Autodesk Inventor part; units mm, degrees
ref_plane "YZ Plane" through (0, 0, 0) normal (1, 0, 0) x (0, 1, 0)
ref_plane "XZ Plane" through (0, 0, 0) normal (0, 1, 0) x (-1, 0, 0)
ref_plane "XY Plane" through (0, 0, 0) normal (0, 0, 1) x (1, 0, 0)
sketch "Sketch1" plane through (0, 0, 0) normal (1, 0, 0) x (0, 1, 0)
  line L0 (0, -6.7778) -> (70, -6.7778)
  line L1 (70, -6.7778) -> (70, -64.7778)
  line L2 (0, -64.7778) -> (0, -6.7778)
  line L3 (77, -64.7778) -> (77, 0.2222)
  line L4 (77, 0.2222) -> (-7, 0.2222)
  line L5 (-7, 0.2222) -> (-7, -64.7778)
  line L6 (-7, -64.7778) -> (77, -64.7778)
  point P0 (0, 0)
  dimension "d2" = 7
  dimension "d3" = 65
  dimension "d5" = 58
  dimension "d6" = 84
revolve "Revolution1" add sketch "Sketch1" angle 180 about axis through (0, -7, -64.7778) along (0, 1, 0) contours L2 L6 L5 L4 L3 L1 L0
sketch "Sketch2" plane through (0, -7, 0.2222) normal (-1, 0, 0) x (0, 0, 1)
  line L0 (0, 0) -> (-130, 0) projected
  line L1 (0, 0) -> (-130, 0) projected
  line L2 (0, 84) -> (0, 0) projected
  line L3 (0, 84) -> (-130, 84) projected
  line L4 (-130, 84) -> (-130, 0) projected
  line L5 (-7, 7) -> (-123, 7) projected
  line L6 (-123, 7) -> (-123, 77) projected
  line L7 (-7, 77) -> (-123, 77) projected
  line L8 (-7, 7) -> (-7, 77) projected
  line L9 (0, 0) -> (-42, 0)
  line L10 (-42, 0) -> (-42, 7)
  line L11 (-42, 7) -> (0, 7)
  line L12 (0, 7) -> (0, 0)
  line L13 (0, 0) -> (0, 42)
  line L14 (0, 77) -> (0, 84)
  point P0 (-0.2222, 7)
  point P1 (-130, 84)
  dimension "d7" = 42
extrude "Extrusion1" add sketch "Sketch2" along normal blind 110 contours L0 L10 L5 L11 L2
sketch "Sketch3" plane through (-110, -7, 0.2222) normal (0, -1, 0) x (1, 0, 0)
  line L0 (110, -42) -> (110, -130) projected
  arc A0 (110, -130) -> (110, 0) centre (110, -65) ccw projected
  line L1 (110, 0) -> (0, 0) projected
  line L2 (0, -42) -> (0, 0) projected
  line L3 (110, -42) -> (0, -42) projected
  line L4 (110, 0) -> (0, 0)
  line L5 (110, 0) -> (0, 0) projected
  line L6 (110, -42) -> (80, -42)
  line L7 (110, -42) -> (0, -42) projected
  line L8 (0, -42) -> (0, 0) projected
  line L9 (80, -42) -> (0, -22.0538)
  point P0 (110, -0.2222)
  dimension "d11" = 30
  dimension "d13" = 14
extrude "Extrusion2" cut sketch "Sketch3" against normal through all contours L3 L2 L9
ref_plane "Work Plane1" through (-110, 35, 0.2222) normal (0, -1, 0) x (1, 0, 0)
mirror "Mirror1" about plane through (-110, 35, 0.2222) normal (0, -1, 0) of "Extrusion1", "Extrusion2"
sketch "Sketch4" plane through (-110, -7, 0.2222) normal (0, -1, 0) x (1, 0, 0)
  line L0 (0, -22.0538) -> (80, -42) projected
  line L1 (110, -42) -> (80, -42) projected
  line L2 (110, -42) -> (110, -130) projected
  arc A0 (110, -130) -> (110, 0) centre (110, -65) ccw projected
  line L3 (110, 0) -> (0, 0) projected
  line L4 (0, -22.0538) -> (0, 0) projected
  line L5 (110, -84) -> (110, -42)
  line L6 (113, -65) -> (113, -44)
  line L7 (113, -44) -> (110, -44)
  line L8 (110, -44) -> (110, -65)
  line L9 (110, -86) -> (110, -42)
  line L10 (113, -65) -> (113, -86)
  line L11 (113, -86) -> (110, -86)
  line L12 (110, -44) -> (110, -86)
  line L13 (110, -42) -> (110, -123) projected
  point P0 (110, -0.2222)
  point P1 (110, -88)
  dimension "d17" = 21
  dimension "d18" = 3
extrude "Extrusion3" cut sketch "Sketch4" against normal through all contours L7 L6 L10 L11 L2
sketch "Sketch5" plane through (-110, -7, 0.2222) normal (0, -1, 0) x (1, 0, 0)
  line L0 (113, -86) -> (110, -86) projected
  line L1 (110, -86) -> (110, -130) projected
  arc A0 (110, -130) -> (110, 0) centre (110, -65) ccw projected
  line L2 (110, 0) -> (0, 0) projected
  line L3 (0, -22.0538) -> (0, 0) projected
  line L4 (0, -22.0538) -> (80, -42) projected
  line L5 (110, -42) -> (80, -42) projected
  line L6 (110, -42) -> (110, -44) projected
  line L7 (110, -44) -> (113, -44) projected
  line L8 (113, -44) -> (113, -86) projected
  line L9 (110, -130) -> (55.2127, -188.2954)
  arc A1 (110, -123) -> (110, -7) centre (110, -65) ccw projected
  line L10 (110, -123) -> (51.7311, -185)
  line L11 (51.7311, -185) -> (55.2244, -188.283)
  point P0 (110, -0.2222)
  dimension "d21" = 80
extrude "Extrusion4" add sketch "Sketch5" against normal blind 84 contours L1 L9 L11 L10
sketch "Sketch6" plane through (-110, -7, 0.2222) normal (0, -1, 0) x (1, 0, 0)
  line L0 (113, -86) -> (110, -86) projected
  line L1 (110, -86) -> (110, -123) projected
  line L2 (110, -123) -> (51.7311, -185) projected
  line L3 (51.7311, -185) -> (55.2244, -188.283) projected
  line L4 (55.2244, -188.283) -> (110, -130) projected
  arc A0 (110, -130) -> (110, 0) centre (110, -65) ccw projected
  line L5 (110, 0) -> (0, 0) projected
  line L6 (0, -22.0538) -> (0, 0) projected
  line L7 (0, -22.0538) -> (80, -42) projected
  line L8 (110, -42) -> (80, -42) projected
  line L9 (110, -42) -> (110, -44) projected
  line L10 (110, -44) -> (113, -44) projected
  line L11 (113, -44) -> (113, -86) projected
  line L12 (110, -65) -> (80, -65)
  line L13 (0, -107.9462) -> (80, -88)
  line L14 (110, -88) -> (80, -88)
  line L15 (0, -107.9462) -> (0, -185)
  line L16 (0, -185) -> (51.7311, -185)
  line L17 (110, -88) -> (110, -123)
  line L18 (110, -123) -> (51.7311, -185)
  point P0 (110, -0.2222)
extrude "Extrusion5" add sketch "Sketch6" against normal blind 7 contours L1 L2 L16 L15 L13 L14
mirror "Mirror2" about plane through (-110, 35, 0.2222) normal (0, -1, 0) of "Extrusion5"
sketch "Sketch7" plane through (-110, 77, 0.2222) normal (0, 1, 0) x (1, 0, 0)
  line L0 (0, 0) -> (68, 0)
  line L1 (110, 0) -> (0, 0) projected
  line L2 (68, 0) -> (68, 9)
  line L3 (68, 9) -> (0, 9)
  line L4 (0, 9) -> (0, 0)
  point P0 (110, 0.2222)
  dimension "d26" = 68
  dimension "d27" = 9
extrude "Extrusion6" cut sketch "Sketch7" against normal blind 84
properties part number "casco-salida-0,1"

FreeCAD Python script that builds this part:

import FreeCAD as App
import Part
import Sketcher
from FreeCAD import Vector
Q = App.Units.Quantity

doc = App.newDocument("Part")
params = doc.addObject("Spreadsheet::Sheet", "Params")
for row, (alias, value) in enumerate([
    ("sketch1_width", "7 mm"),
    ("sketch1_width2", "84 mm"),
    ("sketch1_height", "58 mm"),
    ("sketch1_height2", "65 mm"),
    ("revolution_angle", "180 deg"),
    ("sketch2_height", "42 mm"),
    ("sketch2_width", "7 mm"),
    ("pad1_length", "110 mm"),
    ("sketch3_width", "80 mm"),
    ("sketch4_width", "3 mm"),
    ("sketch4_height", "42 mm"),
    ("sketch5_height", "7 mm"),
    ("pad2_length", "84 mm"),
    ("sketch6_width", "30 mm"),
    ("sketch6_height", "35 mm"),
    ("pad3_length", "7 mm"),
    ("sketch7_width", "68 mm"),
    ("sketch7_height", "9 mm"),
    ("pocket3_length", "84 mm"),
], start=1):
    params.set(f"A{row}", alias)
    params.set(f"B{row}", "=" + value)
    params.setAlias(f"B{row}", alias)

body = doc.addObject("PartDesign::Body", "Body")

# Sketch on YZ plane
sketch1 = body.newObject("Sketcher::SketchObject", "Sketch")
sketch1.AttachmentSupport = (doc.getObject("YZ_Plane"), [""])
sketch1.MapMode = "FlatFace"
sketch1.addGeometry(Part.LineSegment(Vector(0, -65, 0), Vector(0, -7, 0)), False)
sketch1.addGeometry(Part.LineSegment(Vector(0, -7, 0), Vector(70, -7, 0)), False)
sketch1.addGeometry(Part.LineSegment(Vector(70, -7, 0), Vector(70, -65, 0)), False)
sketch1.addGeometry(Part.LineSegment(Vector(70, -65, 0), Vector(77, -65, 0)), False)
sketch1.addGeometry(Part.LineSegment(Vector(77, -65, 0), Vector(77, 0, 0)), False)
sketch1.addGeometry(Part.LineSegment(Vector(77, 0, 0), Vector(-7, 0, 0)), False)
sketch1.addGeometry(Part.LineSegment(Vector(-7, 0, 0), Vector(-7, -65, 0)), False)
sketch1.addGeometry(Part.LineSegment(Vector(-7, -65, 0), Vector(0, -65, 0)), False)
sketch1.addGeometry(Part.LineSegment(Vector(-7, -65, 0), Vector(77, -65, 0)), True)  # axis
sketch1.addConstraint(Sketcher.Constraint("Coincident", 0, 2, 1, 1))
sketch1.addConstraint(Sketcher.Constraint("Coincident", 1, 2, 2, 1))
sketch1.addConstraint(Sketcher.Constraint("Coincident", 2, 2, 3, 1))
sketch1.addConstraint(Sketcher.Constraint("Coincident", 3, 2, 4, 1))
sketch1.addConstraint(Sketcher.Constraint("Coincident", 4, 2, 5, 1))
sketch1.addConstraint(Sketcher.Constraint("Coincident", 5, 2, 6, 1))
sketch1.addConstraint(Sketcher.Constraint("Coincident", 6, 2, 7, 1))
sketch1.addConstraint(Sketcher.Constraint("Coincident", 7, 2, 0, 1))
sketch1.addConstraint(Sketcher.Constraint("Vertical", 0))
sketch1.addConstraint(Sketcher.Constraint("Horizontal", 1))
sketch1.addConstraint(Sketcher.Constraint("Vertical", 2))
sketch1.addConstraint(Sketcher.Constraint("Horizontal", 3))
sketch1.addConstraint(Sketcher.Constraint("Vertical", 4))
sketch1.addConstraint(Sketcher.Constraint("Horizontal", 5))
sketch1.addConstraint(Sketcher.Constraint("Vertical", 6))
sketch1.addConstraint(Sketcher.Constraint("Horizontal", 7))
sketch1.addConstraint(Sketcher.Constraint("Horizontal", 8))
sketch1.addConstraint(Sketcher.Constraint("Coincident", 8, 1, 6, 2))
sketch1.addConstraint(Sketcher.Constraint("Coincident", 8, 2, 3, 2))
sketch1.addConstraint(Sketcher.Constraint("PointOnObject", 0, 2, -2))
sketch1.addConstraint(Sketcher.Constraint("Equal", 3, 7))
sketch1.addConstraint(Sketcher.Constraint("DistanceX", 3, 1, 3, 2, 7.0))
sketch1.addConstraint(Sketcher.Constraint("DistanceX", 5, 2, 5, 1, 84.0))
sketch1.addConstraint(Sketcher.Constraint("DistanceY", 0, 1, 0, 2, 58.0))
sketch1.addConstraint(Sketcher.Constraint("DistanceY", 4, 1, 4, 2, 65.0))
sketch1.addConstraint(Sketcher.Constraint("DistanceY", 0, 2, -1, 1, 6.7778))
sketch1.setExpression("Constraints[21]", "Params.sketch1_width")
sketch1.setExpression("Constraints[22]", "Params.sketch1_width2")
sketch1.setExpression("Constraints[23]", "Params.sketch1_height")
sketch1.setExpression("Constraints[24]", "Params.sketch1_height2")
revolution = body.newObject("PartDesign::Revolution", "Revolution")
revolution.Profile = sketch1
revolution.ReferenceAxis = (sketch1, ["Axis0"])
revolution.setExpression("Angle", "Params.revolution_angle")

# Sketch on YZ plane
sketch2 = body.newObject("Sketcher::SketchObject", "Sketch001")
sketch2.AttachmentSupport = (doc.getObject("YZ_Plane"), [""])
sketch2.MapMode = "FlatFace"
sketch2.addGeometry(Part.LineSegment(Vector(-7, -42, 0), Vector(-7, 0, 0)), False)
sketch2.addGeometry(Part.LineSegment(Vector(-7, 0, 0), Vector(0, 0, 0)), False)
sketch2.addGeometry(Part.LineSegment(Vector(0, 0, 0), Vector(0, -42, 0)), False)
sketch2.addGeometry(Part.LineSegment(Vector(0, -42, 0), Vector(-7, -42, 0)), False)
sketch2.addConstraint(Sketcher.Constraint("Coincident", 0, 2, 1, 1))
sketch2.addConstraint(Sketcher.Constraint("Coincident", 1, 2, 2, 1))
sketch2.addConstraint(Sketcher.Constraint("Coincident", 2, 2, 3, 1))
sketch2.addConstraint(Sketcher.Constraint("Coincident", 3, 2, 0, 1))
sketch2.addConstraint(Sketcher.Constraint("Vertical", 0))
sketch2.addConstraint(Sketcher.Constraint("Horizontal", 1))
sketch2.addConstraint(Sketcher.Constraint("Vertical", 2))
sketch2.addConstraint(Sketcher.Constraint("Horizontal", 3))
sketch2.addConstraint(Sketcher.Constraint("PointOnObject", 1, 2, -2))
sketch2.addConstraint(Sketcher.Constraint("DistanceY", 0, 1, 0, 2, 42.0))
sketch2.addConstraint(Sketcher.Constraint("DistanceX", 1, 1, 1, 2, 7.0))
sketch2.addConstraint(Sketcher.Constraint("DistanceY", -1, 1, 0, 2, 0.2222))
sketch2.setExpression("Constraints[9]", "Params.sketch2_height")
sketch2.setExpression("Constraints[10]", "Params.sketch2_width")
pad1 = body.newObject("PartDesign::Pad", "Pad")
pad1.Profile = sketch2
pad1.setExpression("Length", "Params.pad1_length")
pad1.Reversed = True

# Sketch on XZ plane
sketch3 = body.newObject("Sketcher::SketchObject", "Sketch002")
sketch3.AttachmentSupport = (doc.getObject("XZ_Plane"), [""])
sketch3.MapMode = "FlatFace"
sketch3.AttachmentOffset = App.Placement(Vector(0, 0, 7), App.Rotation())
sketch3.addGeometry(Part.LineSegment(Vector(-110, -42, 0), Vector(-30, -42, 0)), False)
sketch3.addGeometry(Part.LineSegment(Vector(-30, -42, 0), Vector(-110, -22, 0)), False)
sketch3.addGeometry(Part.LineSegment(Vector(-110, -22, 0), Vector(-110, -42, 0)), False)
sketch3.addConstraint(Sketcher.Constraint("Coincident", 0, 2, 1, 1))
sketch3.addConstraint(Sketcher.Constraint("Coincident", 1, 2, 2, 1))
sketch3.addConstraint(Sketcher.Constraint("Coincident", 2, 2, 0, 1))
sketch3.addConstraint(Sketcher.Constraint("Horizontal", 0))
sketch3.addConstraint(Sketcher.Constraint("Vertical", 2))
sketch3.addConstraint(Sketcher.Constraint("DistanceX", 0, 2, -1, 1, 30.0))
sketch3.addConstraint(Sketcher.Constraint("DistanceX", 0, 1, 0, 2, 80.0))
sketch3.addConstraint(Sketcher.Constraint("Angle", 1, Q("166 deg")))
sketch3.addConstraint(Sketcher.Constraint("DistanceY", 0, 2, -1, 1, 41.7778))
sketch3.setExpression("Constraints[6]", "Params.sketch3_width")
pocket1 = body.newObject("PartDesign::Pocket", "Pocket")
pocket1.Profile = sketch3
pocket1.Type = "ThroughAll"
doc.recompute()

datumplane = body.newObject("PartDesign::Plane", "DatumPlane")
datumplane.AttachmentSupport = (doc.getObject("XZ_Plane"), [""])
datumplane.MapMode = "FlatFace"
datumplane.AttachmentOffset = App.Placement(Vector(0, 0, -35), App.Rotation())
mirrored = body.newObject("PartDesign::Mirrored", "Mirrored")
mirrored.Originals = [pad1, pocket1]
mirrored.MirrorPlane = (datumplane, [""])
body.Tip = mirrored

# Sketch on XZ plane
sketch4 = body.newObject("Sketcher::SketchObject", "Sketch003")
sketch4.AttachmentSupport = (doc.getObject("XZ_Plane"), [""])
sketch4.MapMode = "FlatFace"
sketch4.AttachmentOffset = App.Placement(Vector(0, 0, 7), App.Rotation())
sketch4.addGeometry(Part.LineSegment(Vector(3, -43.8, 0), Vector(0, -43.8, 0)), False)
sketch4.addGeometry(Part.LineSegment(Vector(0, -43.8, 0), Vector(0, -85.8, 0)), False)
sketch4.addGeometry(Part.LineSegment(Vector(0, -85.8, 0), Vector(3, -85.8, 0)), False)
sketch4.addGeometry(Part.LineSegment(Vector(3, -85.8, 0), Vector(3, -43.8, 0)), False)
sketch4.addConstraint(Sketcher.Constraint("Coincident", 0, 2, 1, 1))
sketch4.addConstraint(Sketcher.Constraint("Coincident", 1, 2, 2, 1))
sketch4.addConstraint(Sketcher.Constraint("Coincident", 2, 2, 3, 1))
sketch4.addConstraint(Sketcher.Constraint("Coincident", 3, 2, 0, 1))
sketch4.addConstraint(Sketcher.Constraint("Horizontal", 0))
sketch4.addConstraint(Sketcher.Constraint("Vertical", 1))
sketch4.addConstraint(Sketcher.Constraint("Horizontal", 2))
sketch4.addConstraint(Sketcher.Constraint("Vertical", 3))
sketch4.addConstraint(Sketcher.Constraint("PointOnObject", 0, 2, -2))
sketch4.addConstraint(Sketcher.Constraint("DistanceX", 0, 2, 0, 1, 3.0))
sketch4.addConstraint(Sketcher.Constraint("DistanceY", 1, 2, 1, 1, 42.0))
sketch4.addConstraint(Sketcher.Constraint("DistanceY", 0, 2, -1, 1, 43.7778))
sketch4.setExpression("Constraints[9]", "Params.sketch4_width")
sketch4.setExpression("Constraints[10]", "Params.sketch4_height")
pocket2 = body.newObject("PartDesign::Pocket", "Pocket001")
pocket2.Profile = sketch4
pocket2.Type = "ThroughAll"

# Sketch on XZ plane
sketch5 = body.newObject("Sketcher::SketchObject", "Sketch004")
sketch5.AttachmentSupport = (doc.getObject("XZ_Plane"), [""])
sketch5.MapMode = "FlatFace"
sketch5.AttachmentOffset = App.Placement(Vector(0, 0, 7), App.Rotation())
sketch5.addGeometry(Part.LineSegment(Vector(0, -129.8, 0), Vector(0, -122.8, 0)), False)
sketch5.addGeometry(Part.LineSegment(Vector(0, -122.8, 0), Vector(-58.3, -184.8, 0)), False)
sketch5.addGeometry(Part.LineSegment(Vector(-58.3, -184.8, 0), Vector(-54.8, -188.1, 0)), False)
sketch5.addGeometry(Part.LineSegment(Vector(-54.8, -188.1, 0), Vector(0, -129.8, 0)), False)
sketch5.addConstraint(Sketcher.Constraint("Coincident", 0, 2, 1, 1))
sketch5.addConstraint(Sketcher.Constraint("Coincident", 1, 2, 2, 1))
sketch5.addConstraint(Sketcher.Constraint("Coincident", 2, 2, 3, 1))
sketch5.addConstraint(Sketcher.Constraint("Coincident", 3, 2, 0, 1))
sketch5.addConstraint(Sketcher.Constraint("Vertical", 0))
sketch5.addConstraint(Sketcher.Constraint("PointOnObject", 0, 2, -2))
sketch5.addConstraint(Sketcher.Constraint("Perpendicular", 1, 2))
sketch5.addConstraint(Sketcher.Constraint("Perpendicular", 2, 3))
sketch5.addConstraint(Sketcher.Constraint("DistanceY", 0, 1, 0, 2, 7.0))
sketch5.addConstraint(Sketcher.Constraint("DistanceY", 1, 2, 0, 2, 62.0))
sketch5.addConstraint(Sketcher.Constraint("Distance", 3, 79.983))
sketch5.addConstraint(Sketcher.Constraint("DistanceY", 0, 2, -1, 1, 122.7778))
sketch5.setExpression("Constraints[8]", "Params.sketch5_height")
pad2 = body.newObject("PartDesign::Pad", "Pad001")
pad2.Profile = sketch5
pad2.setExpression("Length", "Params.pad2_length")
pad2.Reversed = True

# Sketch on XZ plane
sketch6 = body.newObject("Sketcher::SketchObject", "Sketch005")
sketch6.AttachmentSupport = (doc.getObject("XZ_Plane"), [""])
sketch6.MapMode = "FlatFace"
sketch6.AttachmentOffset = App.Placement(Vector(0, 0, 7), App.Rotation())
sketch6.addGeometry(Part.LineSegment(Vector(0, -123, 0), Vector(0, -88, 0)), False)
sketch6.addGeometry(Part.LineSegment(Vector(0, -88, 0), Vector(-30, -88, 0)), False)
sketch6.addGeometry(Part.LineSegment(Vector(-30, -88, 0), Vector(-110, -108, 0)), False)
sketch6.addGeometry(Part.LineSegment(Vector(-110, -108, 0), Vector(-110, -185, 0)), False)
sketch6.addGeometry(Part.LineSegment(Vector(-110, -185, 0), Vector(-58, -185, 0)), False)
sketch6.addGeometry(Part.LineSegment(Vector(-58, -185, 0), Vector(0, -123, 0)), False)
sketch6.addConstraint(Sketcher.Constraint("Coincident", 0, 2, 1, 1))
sketch6.addConstraint(Sketcher.Constraint("Coincident", 1, 2, 2, 1))
sketch6.addConstraint(Sketcher.Constraint("Coincident", 2, 2, 3, 1))
sketch6.addConstraint(Sketcher.Constraint("Coincident", 3, 2, 4, 1))
sketch6.addConstraint(Sketcher.Constraint("Coincident", 4, 2, 5, 1))
sketch6.addConstraint(Sketcher.Constraint("Coincident", 5, 2, 0, 1))
sketch6.addConstraint(Sketcher.Constraint("Vertical", 0))
sketch6.addConstraint(Sketcher.Constraint("Horizontal", 1))
sketch6.addConstraint(Sketcher.Constraint("Vertical", 3))
sketch6.addConstraint(Sketcher.Constraint("Horizontal", 4))
sketch6.addConstraint(Sketcher.Constraint("PointOnObject", 0, 2, -2))
sketch6.addConstraint(Sketcher.Constraint("DistanceX", 1, 2, 1, 1, 30.0))
sketch6.addConstraint(Sketcher.Constraint("DistanceY", 0, 1, 0, 2, 35.0))
sketch6.addConstraint(Sketcher.Constraint("Angle", 2, Q("-166 deg")))
sketch6.addConstraint(Sketcher.Constraint("DistanceX", 2, 2, -1, 1, 110.0))
sketch6.addConstraint(Sketcher.Constraint("DistanceY", 3, 2, 1, 2, 97.0))
sketch6.addConstraint(Sketcher.Constraint("DistanceX", 4, 1, 4, 2, 51.731))
sketch6.addConstraint(Sketcher.Constraint("DistanceY", 2, 2, -1, 1, 107.724))
sketch6.setExpression("Constraints[11]", "Params.sketch6_width")
sketch6.setExpression("Constraints[12]", "Params.sketch6_height")
pad3 = body.newObject("PartDesign::Pad", "Pad002")
pad3.Profile = sketch6
pad3.setExpression("Length", "Params.pad3_length")
pad3.Reversed = True
doc.recompute()

datumplane2 = body.newObject("PartDesign::Plane", "DatumPlane001")
datumplane2.AttachmentSupport = (doc.getObject("XZ_Plane"), [""])
datumplane2.MapMode = "FlatFace"
datumplane2.AttachmentOffset = App.Placement(Vector(0, 0, -35), App.Rotation())
mirrored2 = body.newObject("PartDesign::Mirrored", "Mirrored001")
mirrored2.Originals = [pad3]
mirrored2.MirrorPlane = (datumplane2, [""])
body.Tip = mirrored2

# Sketch on XZ plane
sketch7 = body.newObject("Sketcher::SketchObject", "Sketch006")
sketch7.AttachmentSupport = (doc.getObject("XZ_Plane"), [""])
sketch7.MapMode = "FlatFace"
sketch7.AttachmentOffset = App.Placement(Vector(0, 0, -77), App.Rotation())
sketch7.addGeometry(Part.LineSegment(Vector(-110, -9, 0), Vector(-110, 0, 0)), False)
sketch7.addGeometry(Part.LineSegment(Vector(-110, 0, 0), Vector(-42, 0, 0)), False)
sketch7.addGeometry(Part.LineSegment(Vector(-42, 0, 0), Vector(-42, -9, 0)), False)
sketch7.addGeometry(Part.LineSegment(Vector(-42, -9, 0), Vector(-110, -9, 0)), False)
sketch7.addConstraint(Sketcher.Constraint("Coincident", 0, 2, 1, 1))
sketch7.addConstraint(Sketcher.Constraint("Coincident", 1, 2, 2, 1))
sketch7.addConstraint(Sketcher.Constraint("Coincident", 2, 2, 3, 1))
sketch7.addConstraint(Sketcher.Constraint("Coincident", 3, 2, 0, 1))
sketch7.addConstraint(Sketcher.Constraint("Vertical", 0))
sketch7.addConstraint(Sketcher.Constraint("Horizontal", 1))
sketch7.addConstraint(Sketcher.Constraint("Vertical", 2))
sketch7.addConstraint(Sketcher.Constraint("Horizontal", 3))
sketch7.addConstraint(Sketcher.Constraint("DistanceX", 1, 1, 1, 2, 68.0))
sketch7.addConstraint(Sketcher.Constraint("DistanceY", 0, 1, 0, 2, 9.0))
sketch7.addConstraint(Sketcher.Constraint("DistanceX", 0, 2, -1, 1, 110.0))
sketch7.addConstraint(Sketcher.Constraint("DistanceY", -1, 1, 0, 2, 0.2222))
sketch7.setExpression("Constraints[8]", "Params.sketch7_width")
sketch7.setExpression("Constraints[9]", "Params.sketch7_height")
pocket3 = body.newObject("PartDesign::Pocket", "Pocket002")
pocket3.Profile = sketch7
pocket3.setExpression("Length", "Params.pocket3_length")
pocket3.Reversed = True

doc.recompute()
